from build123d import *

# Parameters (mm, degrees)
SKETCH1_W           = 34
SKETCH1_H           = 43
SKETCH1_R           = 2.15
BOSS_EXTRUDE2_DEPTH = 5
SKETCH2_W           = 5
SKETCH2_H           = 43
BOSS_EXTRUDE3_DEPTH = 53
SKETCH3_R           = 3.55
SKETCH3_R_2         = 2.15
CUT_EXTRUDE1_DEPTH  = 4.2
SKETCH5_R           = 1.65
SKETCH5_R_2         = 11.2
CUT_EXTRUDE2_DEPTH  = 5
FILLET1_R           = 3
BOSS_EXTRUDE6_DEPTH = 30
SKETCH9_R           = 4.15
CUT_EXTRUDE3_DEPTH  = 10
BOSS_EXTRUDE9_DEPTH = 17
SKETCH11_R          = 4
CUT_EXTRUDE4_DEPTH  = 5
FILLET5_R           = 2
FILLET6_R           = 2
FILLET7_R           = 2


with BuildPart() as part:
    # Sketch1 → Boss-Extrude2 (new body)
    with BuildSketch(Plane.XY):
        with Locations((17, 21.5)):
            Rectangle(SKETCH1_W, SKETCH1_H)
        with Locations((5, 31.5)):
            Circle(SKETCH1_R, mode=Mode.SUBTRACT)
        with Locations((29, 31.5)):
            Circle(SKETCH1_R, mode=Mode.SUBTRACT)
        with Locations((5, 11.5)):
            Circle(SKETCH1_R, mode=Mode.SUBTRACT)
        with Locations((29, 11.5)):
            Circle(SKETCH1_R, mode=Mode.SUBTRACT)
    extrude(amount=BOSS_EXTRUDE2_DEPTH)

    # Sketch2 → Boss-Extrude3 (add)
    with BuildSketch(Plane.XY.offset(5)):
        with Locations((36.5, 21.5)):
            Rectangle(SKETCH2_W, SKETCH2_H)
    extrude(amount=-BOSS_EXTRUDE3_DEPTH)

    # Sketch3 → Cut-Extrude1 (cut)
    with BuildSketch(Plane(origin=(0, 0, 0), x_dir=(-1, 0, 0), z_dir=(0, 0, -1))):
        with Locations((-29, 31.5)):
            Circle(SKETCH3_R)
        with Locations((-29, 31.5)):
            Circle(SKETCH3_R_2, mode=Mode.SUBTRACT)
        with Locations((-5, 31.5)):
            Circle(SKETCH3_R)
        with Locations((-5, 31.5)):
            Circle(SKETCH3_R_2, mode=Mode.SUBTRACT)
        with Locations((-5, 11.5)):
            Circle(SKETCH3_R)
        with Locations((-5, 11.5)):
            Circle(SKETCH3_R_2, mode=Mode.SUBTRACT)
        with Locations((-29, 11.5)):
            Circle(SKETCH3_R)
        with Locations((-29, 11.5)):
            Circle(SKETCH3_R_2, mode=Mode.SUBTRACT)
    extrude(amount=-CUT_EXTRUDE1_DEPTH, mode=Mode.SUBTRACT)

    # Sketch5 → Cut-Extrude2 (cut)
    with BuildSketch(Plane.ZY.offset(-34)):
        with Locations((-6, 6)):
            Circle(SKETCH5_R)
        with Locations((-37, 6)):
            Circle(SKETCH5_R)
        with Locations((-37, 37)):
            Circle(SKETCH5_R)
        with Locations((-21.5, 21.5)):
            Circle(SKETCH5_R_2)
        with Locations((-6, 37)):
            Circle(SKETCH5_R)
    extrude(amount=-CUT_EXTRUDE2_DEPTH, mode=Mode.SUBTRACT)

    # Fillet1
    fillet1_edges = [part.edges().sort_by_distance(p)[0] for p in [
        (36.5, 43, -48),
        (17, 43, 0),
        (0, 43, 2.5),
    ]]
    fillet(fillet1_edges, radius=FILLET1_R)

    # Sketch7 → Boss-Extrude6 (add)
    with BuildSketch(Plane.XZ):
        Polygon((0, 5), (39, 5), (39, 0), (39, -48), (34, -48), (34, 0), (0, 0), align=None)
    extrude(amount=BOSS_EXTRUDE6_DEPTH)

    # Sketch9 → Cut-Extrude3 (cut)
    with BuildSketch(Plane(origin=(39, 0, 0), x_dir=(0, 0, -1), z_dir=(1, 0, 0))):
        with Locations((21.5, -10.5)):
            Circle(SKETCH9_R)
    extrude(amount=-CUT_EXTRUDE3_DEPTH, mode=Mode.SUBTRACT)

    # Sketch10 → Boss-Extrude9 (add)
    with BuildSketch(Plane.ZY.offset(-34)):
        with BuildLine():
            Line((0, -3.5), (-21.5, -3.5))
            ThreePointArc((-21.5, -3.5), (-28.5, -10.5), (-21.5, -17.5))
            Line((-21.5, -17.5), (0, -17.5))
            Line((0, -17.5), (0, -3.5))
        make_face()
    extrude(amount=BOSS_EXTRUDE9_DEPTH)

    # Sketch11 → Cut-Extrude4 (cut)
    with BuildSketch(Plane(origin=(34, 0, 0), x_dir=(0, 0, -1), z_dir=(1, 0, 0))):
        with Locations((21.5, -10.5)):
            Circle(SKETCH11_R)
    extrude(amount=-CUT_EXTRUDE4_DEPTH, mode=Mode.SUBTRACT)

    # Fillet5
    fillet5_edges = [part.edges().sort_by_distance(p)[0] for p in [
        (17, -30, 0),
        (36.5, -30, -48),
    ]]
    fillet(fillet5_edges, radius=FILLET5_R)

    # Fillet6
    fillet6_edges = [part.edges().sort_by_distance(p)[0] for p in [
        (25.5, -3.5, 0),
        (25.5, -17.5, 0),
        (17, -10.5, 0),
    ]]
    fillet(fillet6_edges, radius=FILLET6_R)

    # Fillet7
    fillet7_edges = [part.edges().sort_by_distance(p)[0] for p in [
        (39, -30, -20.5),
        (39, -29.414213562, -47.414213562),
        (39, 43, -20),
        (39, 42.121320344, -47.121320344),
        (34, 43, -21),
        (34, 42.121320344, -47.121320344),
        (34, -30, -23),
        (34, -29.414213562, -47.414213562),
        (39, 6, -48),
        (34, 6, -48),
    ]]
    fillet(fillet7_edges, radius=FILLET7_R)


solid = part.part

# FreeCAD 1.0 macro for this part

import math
import FreeCAD as App
import Part
import Sketcher

V = App.Vector
Q = App.Units.Quantity


def edges_at(feature, points):
    """Names of the edges that pass closest to the given points."""
    edges = feature.Shape.Edges
    near = lambda p: min(range(len(edges)), key=lambda i: edges[i].distToShape(Part.Vertex(*p))[0])
    return sorted({f"Edge{near(p) + 1}" for p in points})

doc = App.newDocument("Part")
params = doc.addObject("Spreadsheet::Sheet", "Params")
for row, (alias, value) in enumerate([
    ("sketch1_diameter", "4.3 mm"),
    ("sketch1_width", "34 mm"),
    ("sketch1_height", "43 mm"),
    ("pad1_length", "5 mm"),
    ("sketch2_width", "5 mm"),
    ("sketch2_height", "43 mm"),
    ("pad2_length", "53 mm"),
    ("sketch3_diameter", "7.1 mm"),
    ("sketch3_diameter2", "4.3 mm"),
    ("pocket1_length", "4.2 mm"),
    ("sketch4_diameter", "3.3 mm"),
    ("sketch4_diameter2", "22.4 mm"),
    ("pocket2_length", "5 mm"),
    ("fillet_radius", "3 mm"),
    ("sketch5_width", "39 mm"),
    ("sketch5_width2", "34 mm"),
    ("sketch5_height", "48 mm"),
    ("pad3_length", "30 mm"),
    ("sketch6_diameter", "8.3 mm"),
    ("pocket3_length", "10 mm"),
    ("sketch7_radius", "7 mm"),
    ("sketch7_height", "21.5 mm"),
    ("pad4_length", "17 mm"),
    ("sketch8_diameter", "8 mm"),
    ("pocket4_length", "5 mm"),
    ("fillet2_radius", "2 mm"),
    ("fillet3_radius", "2 mm"),
    ("fillet4_radius", "2 mm"),
], start=1):
    params.set(f"A{row}", alias)
    params.set(f"B{row}", "=" + value)
    params.setAlias(f"B{row}", alias)

body = doc.addObject("PartDesign::Body", "Body")

sketch1 = body.newObject("Sketcher::SketchObject", "Sketch")
sketch1.AttachmentSupport = (doc.getObject("XY_Plane"), [""])
sketch1.MapMode = "FlatFace"
sketch1.addGeometry([
    Part.LineSegment(V(0, 43, 0), V(0, 0, 0)),
    Part.LineSegment(V(0, 0, 0), V(34, 0, 0)),
    Part.LineSegment(V(34, 0, 0), V(34, 43, 0)),
    Part.LineSegment(V(34, 43, 0), V(0, 43, 0)),
    Part.Circle(V(5, 11.5, 0), V(0, 0, 1), 2.15),
    Part.Circle(V(29, 11.5, 0), V(0, 0, 1), 2.15),
    Part.Circle(V(5, 31.5, 0), V(0, 0, 1), 2.15),
    Part.Circle(V(29, 31.5, 0), V(0, 0, 1), 2.15),
], False)
sketch1.addConstraint([
    Sketcher.Constraint("Coincident", 0, 2, 1, 1),
    Sketcher.Constraint("Coincident", 1, 2, 2, 1),
    Sketcher.Constraint("Coincident", 2, 2, 3, 1),
    Sketcher.Constraint("Coincident", 3, 2, 0, 1),
    Sketcher.Constraint("Vertical", 0),
    Sketcher.Constraint("Horizontal", 1),
    Sketcher.Constraint("Vertical", 2),
    Sketcher.Constraint("Horizontal", 3),
    Sketcher.Constraint("Coincident", 0, 2, -1, 1),
    Sketcher.Constraint("Equal", 4, 5),
    Sketcher.Constraint("Equal", 5, 6),
    Sketcher.Constraint("Equal", 6, 7),
    Sketcher.Constraint("Horizontal", 4, 3, 5, 3),
    Sketcher.Constraint("Horizontal", 6, 3, 7, 3),
    Sketcher.Constraint("Vertical", 4, 3, 6, 3),
    Sketcher.Constraint("Vertical", 5, 3, 7, 3),
    Sketcher.Constraint("Diameter", 4, Q("4.3 mm")),
    Sketcher.Constraint("DistanceX", 1, 1, 1, 2, Q("34 mm")),
    Sketcher.Constraint("DistanceY", 0, 2, 0, 1, Q("43 mm")),
    Sketcher.Constraint("DistanceX", -1, 1, 4, 3, Q("5 mm")),
    Sketcher.Constraint("DistanceX", -1, 1, 5, 3, Q("29 mm")),
    Sketcher.Constraint("DistanceY", 4, 3, 6, 3, Q("20 mm")),
    Sketcher.Constraint("DistanceY", -1, 1, 4, 3, Q("11.5 mm")),
])
sketch1.setExpression("Constraints[16]", "Params.sketch1_diameter")
sketch1.setExpression("Constraints[17]", "Params.sketch1_width")
sketch1.setExpression("Constraints[18]", "Params.sketch1_height")
pad1 = body.newObject("PartDesign::Pad", "Pad")
pad1.Profile = sketch1
pad1.setExpression("Length", "Params.pad1_length")

sketch2 = body.newObject("Sketcher::SketchObject", "Sketch001")
sketch2.AttachmentSupport = (doc.getObject("XY_Plane"), [""])
sketch2.MapMode = "FlatFace"
sketch2.AttachmentOffset = App.Placement(V(0, 0, 5), App.Rotation())
sketch2.addGeometry([
    Part.LineSegment(V(34, 43, 0), V(34, 0, 0)),
    Part.LineSegment(V(34, 0, 0), V(39, 0, 0)),
    Part.LineSegment(V(39, 0, 0), V(39, 43, 0)),
    Part.LineSegment(V(39, 43, 0), V(34, 43, 0)),
], False)
sketch2.addConstraint([
    Sketcher.Constraint("Coincident", 0, 2, 1, 1),
    Sketcher.Constraint("Coincident", 1, 2, 2, 1),
    Sketcher.Constraint("Coincident", 2, 2, 3, 1),
    Sketcher.Constraint("Coincident", 3, 2, 0, 1),
    Sketcher.Constraint("Vertical", 0),
    Sketcher.Constraint("Horizontal", 1),
    Sketcher.Constraint("Vertical", 2),
    Sketcher.Constraint("Horizontal", 3),
    Sketcher.Constraint("PointOnObject", 0, 2, -1),
    Sketcher.Constraint("DistanceX", 1, 1, 1, 2, Q("5 mm")),
    Sketcher.Constraint("DistanceY", 0, 2, 0, 1, Q("43 mm")),
    Sketcher.Constraint("DistanceX", -1, 1, 0, 2, Q("34 mm")),
])
sketch2.setExpression("Constraints[9]", "Params.sketch2_width")
sketch2.setExpression("Constraints[10]", "Params.sketch2_height")
pad2 = body.newObject("PartDesign::Pad", "Pad001")
pad2.Profile = sketch2
pad2.setExpression("Length", "Params.pad2_length")
pad2.Reversed = True

sketch3 = body.newObject("Sketcher::SketchObject", "Sketch002")
sketch3.AttachmentSupport = (doc.getObject("XY_Plane"), [""])
sketch3.MapMode = "FlatFace"
sketch3.addGeometry([
    Part.Circle(V(29, 31.5, 0), V(0, 0, 1), 3.55),
    Part.Circle(V(29, 31.5, 0), V(0, 0, 1), 2.15),
    Part.Circle(V(5, 31.5, 0), V(0, 0, 1), 3.55),
    Part.Circle(V(5, 31.5, 0), V(0, 0, 1), 2.15),
    Part.Circle(V(5, 11.5, 0), V(0, 0, 1), 3.55),
    Part.Circle(V(5, 11.5, 0), V(0, 0, 1), 2.15),
    Part.Circle(V(29, 11.5, 0), V(0, 0, 1), 3.55),
    Part.Circle(V(29, 11.5, 0), V(0, 0, 1), 2.15),
], False)
sketch3.addConstraint([
    Sketcher.Constraint("Coincident", 1, 3, 0, 3),
    Sketcher.Constraint("Coincident", 3, 3, 2, 3),
    Sketcher.Constraint("Coincident", 5, 3, 4, 3),
    Sketcher.Constraint("Coincident", 7, 3, 6, 3),
    Sketcher.Constraint("Equal", 0, 2),
    Sketcher.Constraint("Equal", 1, 3),
    Sketcher.Constraint("Equal", 2, 4),
    Sketcher.Constraint("Equal", 3, 5),
    Sketcher.Constraint("Equal", 4, 6),
    Sketcher.Constraint("Equal", 5, 7),
    Sketcher.Constraint("Horizontal", 1, 3, 2, 3),
    Sketcher.Constraint("Horizontal", 5, 3, 6, 3),
    Sketcher.Constraint("Vertical", 3, 3, 4, 3),
    Sketcher.Constraint("Vertical", 1, 3, 6, 3),
    Sketcher.Constraint("Diameter", 0, Q("7.1 mm")),
    Sketcher.Constraint("Diameter", 1, Q("4.3 mm")),
    Sketcher.Constraint("DistanceX", -1, 1, 0, 3, Q("29 mm")),
    Sketcher.Constraint("DistanceX", -1, 1, 2, 3, Q("5 mm")),
    Sketcher.Constraint("DistanceY", 4, 3, 2, 3, Q("20 mm")),
    Sketcher.Constraint("DistanceY", -1, 1, 0, 3, Q("31.5 mm")),
])
sketch3.setExpression("Constraints[14]", "Params.sketch3_diameter")
sketch3.setExpression("Constraints[15]", "Params.sketch3_diameter2")
pocket1 = body.newObject("PartDesign::Pocket", "Pocket")
pocket1.Profile = sketch3
pocket1.setExpression("Length", "Params.pocket1_length")
pocket1.Reversed = True

sketch4 = body.newObject("Sketcher::SketchObject", "Sketch003")
sketch4.AttachmentSupport = (doc.getObject("YZ_Plane"), [""])
sketch4.MapMode = "FlatFace"
sketch4.AttachmentOffset = App.Placement(V(0, 0, 34), App.Rotation())
sketch4.addGeometry([
    Part.Circle(V(6, -6, 0), V(0, 0, 1), 1.65),
    Part.Circle(V(6, -37, 0), V(0, 0, 1), 1.65),
    Part.Circle(V(37, -37, 0), V(0, 0, 1), 1.65),
    Part.Circle(V(21.5, -21.5, 0), V(0, 0, 1), 11.2),
    Part.Circle(V(37, -6, 0), V(0, 0, 1), 1.65),
], False)
sketch4.addConstraint([
    Sketcher.Constraint("Equal", 0, 1),
    Sketcher.Constraint("Equal", 1, 2),
    Sketcher.Constraint("Equal", 2, 4),
    Sketcher.Constraint("Horizontal", 1, 3, 2, 3),
    Sketcher.Constraint("Horizontal", 0, 3, 4, 3),
    Sketcher.Constraint("Vertical", 0, 3, 1, 3),
    Sketcher.Constraint("Vertical", 2, 3, 4, 3),
    Sketcher.Constraint("Diameter", 0, Q("3.3 mm")),
    Sketcher.Constraint("Diameter", 3, Q("22.4 mm")),
    Sketcher.Constraint("DistanceX", -1, 1, 0, 3, Q("6 mm")),
    Sketcher.Constraint("DistanceY", 0, 3, -1, 1, Q("6 mm")),
    Sketcher.Constraint("DistanceY", 1, 3, -1, 1, Q("37 mm")),
    Sketcher.Constraint("DistanceX", -1, 1, 2, 3, Q("37 mm")),
    Sketcher.Constraint("DistanceX", -1, 1, 3, 3, Q("21.5 mm")),
    Sketcher.Constraint("DistanceY", 3, 3, -1, 1, Q("21.5 mm")),
])
sketch4.setExpression("Constraints[7]", "Params.sketch4_diameter")
sketch4.setExpression("Constraints[8]", "Params.sketch4_diameter2")
pocket2 = body.newObject("PartDesign::Pocket", "Pocket001")
pocket2.Profile = sketch4
pocket2.setExpression("Length", "Params.pocket2_length")
pocket2.Reversed = True
doc.recompute()

fillet = body.newObject("PartDesign::Fillet", "Fillet")
fillet.Base = (pocket2, edges_at(pocket2, [(36.5, 43, -48), (17, 43, 0), (0, 43, 2.5)]))
fillet.setExpression("Radius", "Params.fillet_radius")

sketch5 = body.newObject("Sketcher::SketchObject", "Sketch004")
sketch5.AttachmentSupport = (doc.getObject("XZ_Plane"), [""])
sketch5.MapMode = "FlatFace"
sketch5.addGeometry([
    Part.LineSegment(V(39, 5, 0), V(0, 5, 0)),
    Part.LineSegment(V(0, 5, 0), V(0, 0, 0)),
    Part.LineSegment(V(0, 0, 0), V(34, 0, 0)),
    Part.LineSegment(V(34, 0, 0), V(34, -48, 0)),
    Part.LineSegment(V(34, -48, 0), V(39, -48, 0)),
    Part.LineSegment(V(39, -48, 0), V(39, 5, 0)),
], False)
sketch5.addConstraint([
    Sketcher.Constraint("Coincident", 0, 2, 1, 1),
    Sketcher.Constraint("Coincident", 1, 2, 2, 1),
    Sketcher.Constraint("Coincident", 2, 2, 3, 1),
    Sketcher.Constraint("Coincident", 3, 2, 4, 1),
    Sketcher.Constraint("Coincident", 4, 2, 5, 1),
    Sketcher.Constraint("Coincident", 5, 2, 0, 1),
    Sketcher.Constraint("Horizontal", 0),
    Sketcher.Constraint("Vertical", 1),
    Sketcher.Constraint("Horizontal", 2),
    Sketcher.Constraint("Vertical", 3),
    Sketcher.Constraint("Horizontal", 4),
    Sketcher.Constraint("Vertical", 5),
    Sketcher.Constraint("Coincident", 1, 2, -1, 1),
    Sketcher.Constraint("Equal", 4, 1),
    Sketcher.Constraint("DistanceX", 0, 2, 0, 1, Q("39 mm")),
    Sketcher.Constraint("DistanceX", 2, 1, 2, 2, Q("34 mm")),
    Sketcher.Constraint("DistanceY", 3, 2, 3, 1, Q("48 mm")),
])
sketch5.setExpression("Constraints[14]", "Params.sketch5_width")
sketch5.setExpression("Constraints[15]", "Params.sketch5_width2")
sketch5.setExpression("Constraints[16]", "Params.sketch5_height")
pad3 = body.newObject("PartDesign::Pad", "Pad002")
pad3.Profile = sketch5
pad3.setExpression("Length", "Params.pad3_length")

sketch6 = body.newObject("Sketcher::SketchObject", "Sketch005")
sketch6.AttachmentSupport = (doc.getObject("YZ_Plane"), [""])
sketch6.MapMode = "FlatFace"
sketch6.AttachmentOffset = App.Placement(V(0, 0, 39), App.Rotation())
sketch6.addGeometry(Part.Circle(V(-10.5, -21.5, 0), V(0, 0, 1), 4.15), False)
sketch6.addConstraint([
    Sketcher.Constraint("Diameter", 0, Q("8.3 mm")),
    Sketcher.Constraint("DistanceX", 0, 3, -1, 1, Q("10.5 mm")),
    Sketcher.Constraint("DistanceY", 0, 3, -1, 1, Q("21.5 mm")),
])
sketch6.setExpression("Constraints[0]", "Params.sketch6_diameter")
pocket3 = body.newObject("PartDesign::Pocket", "Pocket002")
pocket3.Profile = sketch6
pocket3.setExpression("Length", "Params.pocket3_length")

sketch7 = body.newObject("Sketcher::SketchObject", "Sketch006")
sketch7.AttachmentSupport = (doc.getObject("YZ_Plane"), [""])
sketch7.MapMode = "FlatFace"
sketch7.AttachmentOffset = App.Placement(V(0, 0, 34), App.Rotation())
sketch7.addGeometry([
    Part.LineSegment(V(-3.5, 0, 0), V(-3.5, -21.5, 0)),
    Part.ArcOfCircle(Part.Circle(V(-10.5, -21.5, 0), V(0, 0, 1), 7), math.radians(180), math.radians(360)),
    Part.LineSegment(V(-17.5, -21.5, 0), V(-17.5, 0, 0)),
    Part.LineSegment(V(-17.5, 0, 0), V(-3.5, 0, 0)),
], False)
sketch7.addConstraint([
    Sketcher.Constraint("Tangent", 0, 2, 1, 2),
    Sketcher.Constraint("Tangent", 1, 1, 2, 1),
    Sketcher.Constraint("Coincident", 2, 2, 3, 1),
    Sketcher.Constraint("Coincident", 3, 2, 0, 1),
    Sketcher.Constraint("Vertical", 0),
    Sketcher.Constraint("Vertical", 2),
    Sketcher.Constraint("Horizontal", 3),
    Sketcher.Constraint("PointOnObject", 2, 2, -1),
    Sketcher.Constraint("Radius", 1, Q("7 mm")),
    Sketcher.Constraint("DistanceY", 0, 2, 0, 1, Q("21.5 mm")),
    Sketcher.Constraint("DistanceX", 1, 3, -1, 1, Q("10.5 mm")),
])
sketch7.setExpression("Constraints[8]", "Params.sketch7_radius")
sketch7.setExpression("Constraints[9]", "Params.sketch7_height")
pad4 = body.newObject("PartDesign::Pad", "Pad003")
pad4.Profile = sketch7
pad4.setExpression("Length", "Params.pad4_length")
pad4.Reversed = True

sketch8 = body.newObject("Sketcher::SketchObject", "Sketch007")
sketch8.AttachmentSupport = (doc.getObject("YZ_Plane"), [""])
sketch8.MapMode = "FlatFace"
sketch8.AttachmentOffset = App.Placement(V(0, 0, 34), App.Rotation())
sketch8.addGeometry(Part.Circle(V(-10.5, -21.5, 0), V(0, 0, 1), 4), False)
sketch8.addConstraint([
    Sketcher.Constraint("Diameter", 0, Q("8 mm")),
    Sketcher.Constraint("DistanceX", 0, 3, -1, 1, Q("10.5 mm")),
    Sketcher.Constraint("DistanceY", 0, 3, -1, 1, Q("21.5 mm")),
])
sketch8.setExpression("Constraints[0]", "Params.sketch8_diameter")
pocket4 = body.newObject("PartDesign::Pocket", "Pocket003")
pocket4.Profile = sketch8
pocket4.setExpression("Length", "Params.pocket4_length")
doc.recompute()

fillet2 = body.newObject("PartDesign::Fillet", "Fillet001")
fillet2.Base = (pocket4, edges_at(pocket4, [(17, -30, 0), (36.5, -30, -48)]))
fillet2.setExpression("Radius", "Params.fillet2_radius")
doc.recompute()

fillet3 = body.newObject("PartDesign::Fillet", "Fillet002")
fillet3.Base = (fillet2, edges_at(fillet2, [(25.5, -3.5, 0), (25.5, -17.5, 0), (17, -10.5, 0)]))
fillet3.setExpression("Radius", "Params.fillet3_radius")
doc.recompute()

fillet4 = body.newObject("PartDesign::Fillet", "Fillet003")
fillet4.Base = (fillet3, edges_at(fillet3, [
    (39, -30, -20.5),
    (39, -29.414, -47.414),
    (39, 43, -20),
    (39, 42.121, -47.121),
    (34, 43, -21),
    (34, 42.121, -47.121),
    (34, -30, -22),
    (34, -29.414, -47.414),
    (39, 6, -48),
    (34, 6, -48),
]))
fillet4.setExpression("Radius", "Params.fillet4_radius")

doc.recompute()
